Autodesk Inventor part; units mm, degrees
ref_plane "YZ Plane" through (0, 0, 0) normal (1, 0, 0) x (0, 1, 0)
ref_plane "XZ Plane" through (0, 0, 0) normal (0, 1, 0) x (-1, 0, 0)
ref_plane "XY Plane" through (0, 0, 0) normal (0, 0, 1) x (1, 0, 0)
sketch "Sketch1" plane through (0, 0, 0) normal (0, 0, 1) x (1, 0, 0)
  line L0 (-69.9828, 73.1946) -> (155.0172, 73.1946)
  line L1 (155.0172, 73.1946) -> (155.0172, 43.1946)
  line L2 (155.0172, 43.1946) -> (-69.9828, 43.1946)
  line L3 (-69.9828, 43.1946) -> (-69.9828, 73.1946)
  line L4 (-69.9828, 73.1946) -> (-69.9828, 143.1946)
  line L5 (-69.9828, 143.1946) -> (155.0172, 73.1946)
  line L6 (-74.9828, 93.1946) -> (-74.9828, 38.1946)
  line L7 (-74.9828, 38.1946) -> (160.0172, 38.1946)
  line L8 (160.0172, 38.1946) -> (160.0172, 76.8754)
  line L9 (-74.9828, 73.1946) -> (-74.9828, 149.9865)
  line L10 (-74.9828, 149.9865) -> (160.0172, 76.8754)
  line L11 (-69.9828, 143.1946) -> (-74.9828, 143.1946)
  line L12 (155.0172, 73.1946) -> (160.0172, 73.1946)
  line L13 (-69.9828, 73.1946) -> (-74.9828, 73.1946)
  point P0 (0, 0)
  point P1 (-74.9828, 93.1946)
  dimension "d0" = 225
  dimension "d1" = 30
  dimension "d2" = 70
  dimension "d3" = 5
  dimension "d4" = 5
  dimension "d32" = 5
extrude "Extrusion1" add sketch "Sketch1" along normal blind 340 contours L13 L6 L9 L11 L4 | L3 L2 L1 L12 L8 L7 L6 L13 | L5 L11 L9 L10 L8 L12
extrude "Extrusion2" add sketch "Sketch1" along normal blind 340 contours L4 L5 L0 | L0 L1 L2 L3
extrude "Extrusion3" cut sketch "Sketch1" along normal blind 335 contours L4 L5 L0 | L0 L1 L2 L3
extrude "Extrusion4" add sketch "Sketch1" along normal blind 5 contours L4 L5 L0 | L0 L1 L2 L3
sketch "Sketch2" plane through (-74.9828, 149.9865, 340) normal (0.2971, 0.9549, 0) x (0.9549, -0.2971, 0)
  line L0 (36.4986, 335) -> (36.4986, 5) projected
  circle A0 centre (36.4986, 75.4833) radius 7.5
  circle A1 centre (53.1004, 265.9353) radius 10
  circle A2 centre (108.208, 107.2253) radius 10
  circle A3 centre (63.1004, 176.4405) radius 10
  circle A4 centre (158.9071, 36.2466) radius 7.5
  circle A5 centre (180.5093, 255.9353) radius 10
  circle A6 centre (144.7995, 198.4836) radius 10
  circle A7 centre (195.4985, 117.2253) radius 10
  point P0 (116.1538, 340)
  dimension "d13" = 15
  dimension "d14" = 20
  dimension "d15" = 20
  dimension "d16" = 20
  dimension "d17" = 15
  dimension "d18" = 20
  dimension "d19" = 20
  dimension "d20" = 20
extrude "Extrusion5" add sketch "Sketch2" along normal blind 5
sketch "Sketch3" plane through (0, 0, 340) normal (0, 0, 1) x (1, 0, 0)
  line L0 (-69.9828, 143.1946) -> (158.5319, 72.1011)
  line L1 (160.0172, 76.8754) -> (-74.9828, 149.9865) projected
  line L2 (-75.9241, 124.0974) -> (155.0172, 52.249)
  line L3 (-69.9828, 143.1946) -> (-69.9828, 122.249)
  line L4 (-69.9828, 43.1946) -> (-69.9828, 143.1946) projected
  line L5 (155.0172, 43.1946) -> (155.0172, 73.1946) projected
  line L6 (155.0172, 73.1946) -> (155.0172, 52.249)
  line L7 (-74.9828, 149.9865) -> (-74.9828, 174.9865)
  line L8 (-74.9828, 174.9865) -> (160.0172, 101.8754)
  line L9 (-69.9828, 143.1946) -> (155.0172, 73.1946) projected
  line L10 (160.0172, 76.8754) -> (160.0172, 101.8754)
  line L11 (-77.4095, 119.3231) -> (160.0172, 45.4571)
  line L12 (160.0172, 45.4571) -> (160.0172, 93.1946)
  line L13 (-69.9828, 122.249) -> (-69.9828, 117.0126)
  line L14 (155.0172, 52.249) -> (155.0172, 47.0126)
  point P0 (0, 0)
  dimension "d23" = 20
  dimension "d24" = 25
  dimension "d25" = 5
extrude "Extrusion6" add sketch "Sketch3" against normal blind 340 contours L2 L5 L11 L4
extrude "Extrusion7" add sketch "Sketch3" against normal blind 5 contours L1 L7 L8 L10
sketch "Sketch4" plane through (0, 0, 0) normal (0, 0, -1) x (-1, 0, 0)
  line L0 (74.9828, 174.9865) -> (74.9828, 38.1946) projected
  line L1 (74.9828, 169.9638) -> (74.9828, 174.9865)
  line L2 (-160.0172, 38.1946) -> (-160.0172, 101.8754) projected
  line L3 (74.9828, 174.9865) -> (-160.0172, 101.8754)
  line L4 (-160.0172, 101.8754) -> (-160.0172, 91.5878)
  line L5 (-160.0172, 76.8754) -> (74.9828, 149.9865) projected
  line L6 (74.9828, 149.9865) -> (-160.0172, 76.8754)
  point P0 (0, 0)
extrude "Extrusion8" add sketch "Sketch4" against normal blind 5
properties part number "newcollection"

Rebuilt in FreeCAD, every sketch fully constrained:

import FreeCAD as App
import Part
import Sketcher
Q = App.Units.Quantity

doc = App.newDocument("Part")
params = doc.addObject("Spreadsheet::Sheet", "Params")
for row, (alias, value) in enumerate([
    ("sketch1_width", "225 mm"),
    ("sketch1_height", "30 mm"),
    ("pad1_length", "340 mm"),
    ("sketch2_width", "225 mm"),
    ("sketch2_height", "30 mm"),
    ("pad2_length", "340 mm"),
    ("sketch3_width", "225 mm"),
    ("sketch3_height", "30 mm"),
    ("pocket1_length", "335 mm"),
    ("sketch4_width", "225 mm"),
    ("sketch4_height", "30 mm"),
    ("pad3_length", "5 mm"),
    ("sketch5_diameter", "15 mm"),
    ("sketch5_diameter2", "20 mm"),
    ("pad4_length", "5 mm"),
    ("pad5_length", "340 mm"),
    ("sketch7_height", "25 mm"),
    ("pad6_length", "5 mm"),
    ("sketch8_height", "25 mm"),
    ("pad7_length", "5 mm"),
], start=1):
    params.set(f"A{row}", alias)
    params.set(f"B{row}", "=" + value)
    params.setAlias(f"B{row}", alias)

body = doc.addObject("PartDesign::Body", "Body")

sketch1 = body.newObject("Sketcher::SketchObject", "Sketch")
sketch1.AttachmentSupport = (doc.getObject("XY_Plane"), [""])
sketch1.MapMode = "FlatFace"
sketch1.addGeometry(Part.LineSegment(App.Vector(-75, 38, 0), App.Vector(160, 38, 0)), False)
sketch1.addGeometry(Part.LineSegment(App.Vector(160, 38, 0), App.Vector(160, 77, 0)), False)
sketch1.addGeometry(Part.LineSegment(App.Vector(160, 77, 0), App.Vector(-75, 150, 0)), False)
sketch1.addGeometry(Part.LineSegment(App.Vector(-75, 150, 0), App.Vector(-75, 38, 0)), False)
sketch1.addGeometry(Part.LineSegment(App.Vector(-70, 143, 0), App.Vector(155, 73, 0)), False)
sketch1.addGeometry(Part.LineSegment(App.Vector(155, 73, 0), App.Vector(155, 43, 0)), False)
sketch1.addGeometry(Part.LineSegment(App.Vector(155, 43, 0), App.Vector(-70, 43, 0)), False)
sketch1.addGeometry(Part.LineSegment(App.Vector(-70, 43, 0), App.Vector(-70, 143, 0)), False)
sketch1.addConstraint(Sketcher.Constraint("Coincident", 0, 2, 1, 1))
sketch1.addConstraint(Sketcher.Constraint("Coincident", 1, 2, 2, 1))
sketch1.addConstraint(Sketcher.Constraint("Coincident", 2, 2, 3, 1))
sketch1.addConstraint(Sketcher.Constraint("Coincident", 3, 2, 0, 1))
sketch1.addConstraint(Sketcher.Constraint("Coincident", 4, 2, 5, 1))
sketch1.addConstraint(Sketcher.Constraint("Coincident", 5, 2, 6, 1))
sketch1.addConstraint(Sketcher.Constraint("Coincident", 6, 2, 7, 1))
sketch1.addConstraint(Sketcher.Constraint("Coincident", 7, 2, 4, 1))
sketch1.addConstraint(Sketcher.Constraint("Horizontal", 0))
sketch1.addConstraint(Sketcher.Constraint("Vertical", 1))
sketch1.addConstraint(Sketcher.Constraint("Vertical", 3))
sketch1.addConstraint(Sketcher.Constraint("Vertical", 5))
sketch1.addConstraint(Sketcher.Constraint("Horizontal", 6))
sketch1.addConstraint(Sketcher.Constraint("Vertical", 7))
sketch1.addConstraint(Sketcher.Constraint("Parallel", 2, 4))
sketch1.addConstraint(Sketcher.Constraint("DistanceX", 6, 2, 6, 1, Q("225 mm")))
sketch1.addConstraint(Sketcher.Constraint("DistanceY", 5, 2, 5, 1, Q("30 mm")))
sketch1.addConstraint(Sketcher.Constraint("DistanceX", 4, 2, 1, 2, Q("5 mm")))
sketch1.addConstraint(Sketcher.Constraint("DistanceY", 0, 2, 5, 2, Q("5 mm")))
sketch1.addConstraint(Sketcher.Constraint("DistanceX", 3, 2, 6, 2, Q("5 mm")))
sketch1.addConstraint(Sketcher.Constraint("DistanceY", 4, 2, 7, 2, Q("70 mm")))
sketch1.addConstraint(Sketcher.Constraint("DistanceY", 3, 2, 3, 1, Q("111.792 mm")))
sketch1.addConstraint(Sketcher.Constraint("DistanceX", -1, 1, 0, 2, Q("160.0172 mm")))
sketch1.addConstraint(Sketcher.Constraint("DistanceY", -1, 1, 0, 2, Q("38.1946 mm")))
sketch1.setExpression("Constraints[15]", "Params.sketch1_width")
sketch1.setExpression("Constraints[16]", "Params.sketch1_height")
pad1 = body.newObject("PartDesign::Pad", "Pad")
pad1.Profile = sketch1
pad1.setExpression("Length", "Params.pad1_length")

sketch2 = body.newObject("Sketcher::SketchObject", "Sketch001")
sketch2.AttachmentSupport = (doc.getObject("XY_Plane"), [""])
sketch2.MapMode = "FlatFace"
sketch2.addGeometry(Part.LineSegment(App.Vector(-70, 143, 0), App.Vector(-70, 43, 0)), False)
sketch2.addGeometry(Part.LineSegment(App.Vector(-70, 43, 0), App.Vector(155, 43, 0)), False)
sketch2.addGeometry(Part.LineSegment(App.Vector(155, 43, 0), App.Vector(155, 73, 0)), False)
sketch2.addGeometry(Part.LineSegment(App.Vector(155, 73, 0), App.Vector(-70, 143, 0)), False)
sketch2.addConstraint(Sketcher.Constraint("Coincident", 0, 2, 1, 1))
sketch2.addConstraint(Sketcher.Constraint("Coincident", 1, 2, 2, 1))
sketch2.addConstraint(Sketcher.Constraint("Coincident", 2, 2, 3, 1))
sketch2.addConstraint(Sketcher.Constraint("Coincident", 3, 2, 0, 1))
sketch2.addConstraint(Sketcher.Constraint("Vertical", 0))
sketch2.addConstraint(Sketcher.Constraint("Horizontal", 1))
sketch2.addConstraint(Sketcher.Constraint("Vertical", 2))
sketch2.addConstraint(Sketcher.Constraint("DistanceX", 1, 1, 1, 2, Q("225 mm")))
sketch2.addConstraint(Sketcher.Constraint("DistanceY", 2, 1, 2, 2, Q("30 mm")))
sketch2.addConstraint(Sketcher.Constraint("DistanceY", 2, 2, 3, 2, Q("70 mm")))
sketch2.addConstraint(Sketcher.Constraint("DistanceX", 0, 2, -1, 1, Q("69.9828 mm")))
sketch2.addConstraint(Sketcher.Constraint("DistanceY", -1, 1, 0, 2, Q("43.1946 mm")))
sketch2.setExpression("Constraints[7]", "Params.sketch2_width")
sketch2.setExpression("Constraints[8]", "Params.sketch2_height")
pad2 = body.newObject("PartDesign::Pad", "Pad001")
pad2.Profile = sketch2
pad2.setExpression("Length", "Params.pad2_length")

sketch3 = body.newObject("Sketcher::SketchObject", "Sketch002")
sketch3.AttachmentSupport = (doc.getObject("XY_Plane"), [""])
sketch3.MapMode = "FlatFace"
sketch3.addGeometry(Part.LineSegment(App.Vector(-70, 143, 0), App.Vector(-70, 43, 0)), False)
sketch3.addGeometry(Part.LineSegment(App.Vector(-70, 43, 0), App.Vector(155, 43, 0)), False)
sketch3.addGeometry(Part.LineSegment(App.Vector(155, 43, 0), App.Vector(155, 73, 0)), False)
sketch3.addGeometry(Part.LineSegment(App.Vector(155, 73, 0), App.Vector(-70, 143, 0)), False)
sketch3.addConstraint(Sketcher.Constraint("Coincident", 0, 2, 1, 1))
sketch3.addConstraint(Sketcher.Constraint("Coincident", 1, 2, 2, 1))
sketch3.addConstraint(Sketcher.Constraint("Coincident", 2, 2, 3, 1))
sketch3.addConstraint(Sketcher.Constraint("Coincident", 3, 2, 0, 1))
sketch3.addConstraint(Sketcher.Constraint("Vertical", 0))
sketch3.addConstraint(Sketcher.Constraint("Horizontal", 1))
sketch3.addConstraint(Sketcher.Constraint("Vertical", 2))
sketch3.addConstraint(Sketcher.Constraint("DistanceX", 1, 1, 1, 2, Q("225 mm")))
sketch3.addConstraint(Sketcher.Constraint("DistanceY", 2, 1, 2, 2, Q("30 mm")))
sketch3.addConstraint(Sketcher.Constraint("DistanceY", 2, 2, 3, 2, Q("70 mm")))
sketch3.addConstraint(Sketcher.Constraint("DistanceX", 0, 2, -1, 1, Q("69.9828 mm")))
sketch3.addConstraint(Sketcher.Constraint("DistanceY", -1, 1, 0, 2, Q("43.1946 mm")))
sketch3.setExpression("Constraints[7]", "Params.sketch3_width")
sketch3.setExpression("Constraints[8]", "Params.sketch3_height")
pocket1 = body.newObject("PartDesign::Pocket", "Pocket")
pocket1.Profile = sketch3
pocket1.setExpression("Length", "Params.pocket1_length")
pocket1.Reversed = True

sketch4 = body.newObject("Sketcher::SketchObject", "Sketch003")
sketch4.AttachmentSupport = (doc.getObject("XY_Plane"), [""])
sketch4.MapMode = "FlatFace"
sketch4.addGeometry(Part.LineSegment(App.Vector(-70, 143, 0), App.Vector(-70, 43, 0)), False)
sketch4.addGeometry(Part.LineSegment(App.Vector(-70, 43, 0), App.Vector(155, 43, 0)), False)
sketch4.addGeometry(Part.LineSegment(App.Vector(155, 43, 0), App.Vector(155, 73, 0)), False)
sketch4.addGeometry(Part.LineSegment(App.Vector(155, 73, 0), App.Vector(-70, 143, 0)), False)
sketch4.addConstraint(Sketcher.Constraint("Coincident", 0, 2, 1, 1))
sketch4.addConstraint(Sketcher.Constraint("Coincident", 1, 2, 2, 1))
sketch4.addConstraint(Sketcher.Constraint("Coincident", 2, 2, 3, 1))
sketch4.addConstraint(Sketcher.Constraint("Coincident", 3, 2, 0, 1))
sketch4.addConstraint(Sketcher.Constraint("Vertical", 0))
sketch4.addConstraint(Sketcher.Constraint("Horizontal", 1))
sketch4.addConstraint(Sketcher.Constraint("Vertical", 2))
sketch4.addConstraint(Sketcher.Constraint("DistanceX", 1, 1, 1, 2, Q("225 mm")))
sketch4.addConstraint(Sketcher.Constraint("DistanceY", 2, 1, 2, 2, Q("30 mm")))
sketch4.addConstraint(Sketcher.Constraint("DistanceY", 2, 2, 3, 2, Q("70 mm")))
sketch4.addConstraint(Sketcher.Constraint("DistanceX", 0, 2, -1, 1, Q("69.9828 mm")))
sketch4.addConstraint(Sketcher.Constraint("DistanceY", -1, 1, 0, 2, Q("43.1946 mm")))
sketch4.setExpression("Constraints[7]", "Params.sketch4_width")
sketch4.setExpression("Constraints[8]", "Params.sketch4_height")
pad3 = body.newObject("PartDesign::Pad", "Pad002")
pad3.Profile = sketch4
pad3.setExpression("Length", "Params.pad3_length")

sketch5 = body.newObject("Sketcher::SketchObject", "Sketch004")
sketch5.Placement = App.Placement(App.Vector(-74.9828, 149.9865, 340), App.Rotation(App.Vector(0.954851103, -0.297084787, 0), App.Vector(0, 0, -1), App.Vector(0.297084787, 0.954851103, 0), "ZXY"))
sketch5.addGeometry(Part.Circle(App.Vector(36, 75, 0), App.Vector(0, 0, 1), 8), False)
sketch5.addGeometry(Part.Circle(App.Vector(53, 266, 0), App.Vector(0, 0, 1), 10), False)
sketch5.addGeometry(Part.Circle(App.Vector(108, 107, 0), App.Vector(0, 0, 1), 10), False)
sketch5.addGeometry(Part.Circle(App.Vector(63, 176, 0), App.Vector(0, 0, 1), 10), False)
sketch5.addGeometry(Part.Circle(App.Vector(159, 36, 0), App.Vector(0, 0, 1), 8), False)
sketch5.addGeometry(Part.Circle(App.Vector(181, 256, 0), App.Vector(0, 0, 1), 10), False)
sketch5.addGeometry(Part.Circle(App.Vector(145, 198, 0), App.Vector(0, 0, 1), 10), False)
sketch5.addGeometry(Part.Circle(App.Vector(195, 117, 0), App.Vector(0, 0, 1), 10), False)
sketch5.addConstraint(Sketcher.Constraint("Equal", 1, 2))
sketch5.addConstraint(Sketcher.Constraint("Equal", 2, 3))
sketch5.addConstraint(Sketcher.Constraint("Equal", 0, 4))
sketch5.addConstraint(Sketcher.Constraint("Equal", 3, 5))
sketch5.addConstraint(Sketcher.Constraint("Equal", 5, 6))
sketch5.addConstraint(Sketcher.Constraint("Equal", 6, 7))
sketch5.addConstraint(Sketcher.Constraint("Diameter", 0, Q("15 mm")))
sketch5.addConstraint(Sketcher.Constraint("Diameter", 1, Q("20 mm")))
sketch5.addConstraint(Sketcher.Constraint("DistanceX", 1, 3, 3, 3, Q("10 mm")))
sketch5.addConstraint(Sketcher.Constraint("DistanceY", 5, 3, 1, 3, Q("10 mm")))
sketch5.addConstraint(Sketcher.Constraint("DistanceY", 2, 3, 7, 3, Q("10 mm")))
sketch5.addConstraint(Sketcher.Constraint("DistanceY", 2, 3, 1, 3, Q("158.71 mm")))
sketch5.addConstraint(Sketcher.Constraint("DistanceX", -1, 1, 2, 3, Q("108.208 mm")))
sketch5.addConstraint(Sketcher.Constraint("DistanceX", -1, 1, 4, 3, Q("158.907 mm")))
sketch5.addConstraint(Sketcher.Constraint("DistanceY", 0, 3, 1, 3, Q("190.452 mm")))
sketch5.addConstraint(Sketcher.Constraint("DistanceY", 4, 3, 3, 3, Q("140.194 mm")))
sketch5.addConstraint(Sketcher.Constraint("DistanceX", 1, 3, 5, 3, Q("127.409 mm")))
sketch5.addConstraint(Sketcher.Constraint("DistanceX", 3, 3, 6, 3, Q("81.699 mm")))
sketch5.addConstraint(Sketcher.Constraint("DistanceY", 3, 3, 6, 3, Q("22.043 mm")))
sketch5.addConstraint(Sketcher.Constraint("DistanceX", 6, 3, 7, 3, Q("50.699 mm")))
sketch5.addConstraint(Sketcher.Constraint("DistanceX", -1, 1, 0, 3, Q("36.4986 mm")))
sketch5.addConstraint(Sketcher.Constraint("DistanceY", -1, 1, 0, 3, Q("75.4833 mm")))
sketch5.addConstraint(Sketcher.Constraint("DistanceX", -1, 1, 1, 3, Q("53.1004 mm")))
sketch5.addConstraint(Sketcher.Constraint("DistanceY", -1, 1, 3, 3, Q("176.4405 mm")))
sketch5.setExpression("Constraints[6]", "Params.sketch5_diameter")
sketch5.setExpression("Constraints[7]", "Params.sketch5_diameter2")
pad4 = body.newObject("PartDesign::Pad", "Pad003")
pad4.Profile = sketch5
pad4.setExpression("Length", "Params.pad4_length")

sketch6 = body.newObject("Sketcher::SketchObject", "Sketch005")
sketch6.AttachmentSupport = (doc.getObject("XY_Plane"), [""])
sketch6.MapMode = "FlatFace"
sketch6.AttachmentOffset = App.Placement(App.Vector(0, 0, 340), App.Rotation())
sketch6.addGeometry(Part.LineSegment(App.Vector(155, 52, 0), App.Vector(-70, 122, 0)), False)
sketch6.addGeometry(Part.LineSegment(App.Vector(-70, 122, 0), App.Vector(-70, 117, 0)), False)
sketch6.addGeometry(Part.LineSegment(App.Vector(-70, 117, 0), App.Vector(155, 47, 0)), False)
sketch6.addGeometry(Part.LineSegment(App.Vector(155, 47, 0), App.Vector(155, 52, 0)), False)
sketch6.addConstraint(Sketcher.Constraint("Coincident", 0, 2, 1, 1))
sketch6.addConstraint(Sketcher.Constraint("Coincident", 1, 2, 2, 1))
sketch6.addConstraint(Sketcher.Constraint("Coincident", 2, 2, 3, 1))
sketch6.addConstraint(Sketcher.Constraint("Coincident", 3, 2, 0, 1))
sketch6.addConstraint(Sketcher.Constraint("Vertical", 1))
sketch6.addConstraint(Sketcher.Constraint("Vertical", 3))
sketch6.addConstraint(Sketcher.Constraint("Parallel", 0, 2))
sketch6.addConstraint(Sketcher.Constraint("DistanceX", 1, 2, 2, 2, Q("225 mm")))
sketch6.addConstraint(Sketcher.Constraint("DistanceY", 2, 2, 1, 2, Q("70 mm")))
sketch6.addConstraint(Sketcher.Constraint("DistanceY", 1, 2, 1, 1, Q("5.2364 mm")))
sketch6.addConstraint(Sketcher.Constraint("DistanceY", -1, 1, 0, 2, Q("122.249 mm")))
sketch6.addConstraint(Sketcher.Constraint("DistanceX", 0, 2, -1, 1, Q("69.9828 mm")))
pad5 = body.newObject("PartDesign::Pad", "Pad004")
pad5.Profile = sketch6
pad5.setExpression("Length", "Params.pad5_length")
pad5.Reversed = True

sketch7 = body.newObject("Sketcher::SketchObject", "Sketch006")
sketch7.AttachmentSupport = (doc.getObject("XY_Plane"), [""])
sketch7.MapMode = "FlatFace"
sketch7.AttachmentOffset = App.Placement(App.Vector(0, 0, 340), App.Rotation())
sketch7.addGeometry(Part.LineSegment(App.Vector(-75, 150, 0), App.Vector(160, 77, 0)), False)
sketch7.addGeometry(Part.LineSegment(App.Vector(160, 77, 0), App.Vector(160, 102, 0)), False)
sketch7.addGeometry(Part.LineSegment(App.Vector(160, 102, 0), App.Vector(-75, 175, 0)), False)
sketch7.addGeometry(Part.LineSegment(App.Vector(-75, 175, 0), App.Vector(-75, 150, 0)), False)
sketch7.addConstraint(Sketcher.Constraint("Coincident", 0, 2, 1, 1))
sketch7.addConstraint(Sketcher.Constraint("Coincident", 1, 2, 2, 1))
sketch7.addConstraint(Sketcher.Constraint("Coincident", 2, 2, 3, 1))
sketch7.addConstraint(Sketcher.Constraint("Coincident", 3, 2, 0, 1))
sketch7.addConstraint(Sketcher.Constraint("Vertical", 1))
sketch7.addConstraint(Sketcher.Constraint("Vertical", 3))
sketch7.addConstraint(Sketcher.Constraint("Parallel", 0, 2))
sketch7.addConstraint(Sketcher.Constraint("DistanceY", 1, 1, 1, 2, Q("25 mm")))
sketch7.addConstraint(Sketcher.Constraint("DistanceX", 2, 2, 1, 2, Q("235 mm")))
sketch7.addConstraint(Sketcher.Constraint("DistanceY", 1, 2, 2, 2, Q("73.111 mm")))
sketch7.addConstraint(Sketcher.Constraint("DistanceX", -1, 1, 0, 2, Q("160.0172 mm")))
sketch7.addConstraint(Sketcher.Constraint("DistanceY", -1, 1, 0, 2, Q("76.8754 mm")))
sketch7.setExpression("Constraints[7]", "Params.sketch7_height")
pad6 = body.newObject("PartDesign::Pad", "Pad005")
pad6.Profile = sketch7
pad6.setExpression("Length", "Params.pad6_length")
pad6.Reversed = True

sketch8 = body.newObject("Sketcher::SketchObject", "Sketch007")
sketch8.AttachmentSupport = (doc.getObject("XY_Plane"), [""])
sketch8.MapMode = "FlatFace"
sketch8.addGeometry(Part.LineSegment(App.Vector(-75, 150, 0), App.Vector(-75, 175, 0)), False)
sketch8.addGeometry(Part.LineSegment(App.Vector(-75, 175, 0), App.Vector(160, 102, 0)), False)
sketch8.addGeometry(Part.LineSegment(App.Vector(160, 102, 0), App.Vector(160, 77, 0)), False)
sketch8.addGeometry(Part.LineSegment(App.Vector(160, 77, 0), App.Vector(-75, 150, 0)), False)
sketch8.addConstraint(Sketcher.Constraint("Coincident", 0, 2, 1, 1))
sketch8.addConstraint(Sketcher.Constraint("Coincident", 1, 2, 2, 1))
sketch8.addConstraint(Sketcher.Constraint("Coincident", 2, 2, 3, 1))
sketch8.addConstraint(Sketcher.Constraint("Coincident", 3, 2, 0, 1))
sketch8.addConstraint(Sketcher.Constraint("Vertical", 0))
sketch8.addConstraint(Sketcher.Constraint("Vertical", 2))
sketch8.addConstraint(Sketcher.Constraint("Parallel", 1, 3))
sketch8.addConstraint(Sketcher.Constraint("DistanceY", 0, 1, 0, 2, Q("25 mm")))
sketch8.addConstraint(Sketcher.Constraint("DistanceX", 0, 2, 1, 2, Q("235 mm")))
sketch8.addConstraint(Sketcher.Constraint("DistanceY", 1, 2, 0, 2, Q("73.111 mm")))
sketch8.addConstraint(Sketcher.Constraint("DistanceX", 0, 2, -1, 1, Q("74.9828 mm")))
sketch8.addConstraint(Sketcher.Constraint("DistanceY", -1, 1, 0, 2, Q("174.9865 mm")))
sketch8.setExpression("Constraints[7]", "Params.sketch8_height")
pad7 = body.newObject("PartDesign::Pad", "Pad006")
pad7.Profile = sketch8
pad7.setExpression("Length", "Params.pad7_length")

doc.recompute()
